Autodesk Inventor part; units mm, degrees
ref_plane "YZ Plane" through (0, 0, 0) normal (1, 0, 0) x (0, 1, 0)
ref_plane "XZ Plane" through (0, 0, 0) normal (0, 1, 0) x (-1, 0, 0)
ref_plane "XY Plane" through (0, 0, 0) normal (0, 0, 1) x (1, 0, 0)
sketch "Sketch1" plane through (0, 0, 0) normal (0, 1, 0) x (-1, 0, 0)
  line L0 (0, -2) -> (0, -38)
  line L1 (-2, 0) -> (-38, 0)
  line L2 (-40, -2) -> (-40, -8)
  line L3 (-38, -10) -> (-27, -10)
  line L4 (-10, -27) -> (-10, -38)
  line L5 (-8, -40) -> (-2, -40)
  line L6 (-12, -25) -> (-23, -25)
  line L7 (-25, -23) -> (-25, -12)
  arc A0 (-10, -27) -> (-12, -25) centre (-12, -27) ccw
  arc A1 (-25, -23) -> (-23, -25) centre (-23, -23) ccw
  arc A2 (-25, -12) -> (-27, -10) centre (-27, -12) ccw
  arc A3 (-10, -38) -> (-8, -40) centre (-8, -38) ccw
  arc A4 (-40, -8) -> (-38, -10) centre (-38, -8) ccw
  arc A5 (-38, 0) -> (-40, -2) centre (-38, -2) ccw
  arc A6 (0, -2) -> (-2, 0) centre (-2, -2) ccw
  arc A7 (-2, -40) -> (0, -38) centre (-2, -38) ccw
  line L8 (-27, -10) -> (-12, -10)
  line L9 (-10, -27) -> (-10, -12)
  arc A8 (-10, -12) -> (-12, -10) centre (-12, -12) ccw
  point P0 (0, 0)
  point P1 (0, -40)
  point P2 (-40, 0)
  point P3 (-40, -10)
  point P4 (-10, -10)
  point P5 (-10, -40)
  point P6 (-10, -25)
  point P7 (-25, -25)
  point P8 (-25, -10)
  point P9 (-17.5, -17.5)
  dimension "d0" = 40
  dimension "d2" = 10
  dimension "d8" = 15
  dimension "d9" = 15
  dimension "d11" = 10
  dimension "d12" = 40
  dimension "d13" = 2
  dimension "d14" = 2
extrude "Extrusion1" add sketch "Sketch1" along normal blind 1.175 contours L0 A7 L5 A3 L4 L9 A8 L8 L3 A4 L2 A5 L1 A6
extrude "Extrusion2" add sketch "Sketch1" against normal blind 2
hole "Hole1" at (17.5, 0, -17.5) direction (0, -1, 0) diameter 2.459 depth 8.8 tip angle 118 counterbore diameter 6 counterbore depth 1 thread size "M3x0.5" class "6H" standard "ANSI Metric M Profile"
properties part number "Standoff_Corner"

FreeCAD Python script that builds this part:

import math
import FreeCAD as App
import Part
import Sketcher
Q = App.Units.Quantity

doc = App.newDocument("Part")
body = doc.addObject("PartDesign::Body", "Body")

sketch1 = body.newObject("Sketcher::SketchObject", "Sketch")
sketch1.AttachmentSupport = (doc.getObject("XZ_Plane"), [""])
sketch1.MapMode = "FlatFace"
sketch1.addGeometry(Part.LineSegment(App.Vector(0, -38, 0), App.Vector(0, -2, 0)), False)
sketch1.addGeometry(Part.ArcOfCircle(Part.Circle(App.Vector(2, -2, 0), App.Vector(0, 0, 1), 2), math.radians(90), math.radians(180)), False)
sketch1.addGeometry(Part.LineSegment(App.Vector(2, 0, 0), App.Vector(38, 0, 0)), False)
sketch1.addGeometry(Part.ArcOfCircle(Part.Circle(App.Vector(38, -2, 0), App.Vector(0, 0, 1), 2), math.radians(0), math.radians(90)), False)
sketch1.addGeometry(Part.LineSegment(App.Vector(40, -2, 0), App.Vector(40, -8, 0)), False)
sketch1.addGeometry(Part.ArcOfCircle(Part.Circle(App.Vector(38, -8, 0), App.Vector(0, 0, 1), 2), math.radians(-90), math.radians(0)), False)
sketch1.addGeometry(Part.LineSegment(App.Vector(38, -10, 0), App.Vector(12, -10, 0)), False)
sketch1.addGeometry(Part.ArcOfCircle(Part.Circle(App.Vector(12, -12, 0), App.Vector(0, 0, 1), 2), math.radians(90), math.radians(180)), False)
sketch1.addGeometry(Part.LineSegment(App.Vector(10, -12, 0), App.Vector(10, -38, 0)), False)
sketch1.addGeometry(Part.ArcOfCircle(Part.Circle(App.Vector(8, -38, 0), App.Vector(0, 0, 1), 2), math.radians(-90), math.radians(0)), False)
sketch1.addGeometry(Part.LineSegment(App.Vector(8, -40, 0), App.Vector(2, -40, 0)), False)
sketch1.addGeometry(Part.ArcOfCircle(Part.Circle(App.Vector(2, -38, 0), App.Vector(0, 0, 1), 2), math.radians(180), math.radians(270)), False)
sketch1.addConstraint(Sketcher.Constraint("Tangent", 0, 2, 1, 2))
sketch1.addConstraint(Sketcher.Constraint("Tangent", 1, 1, 2, 1))
sketch1.addConstraint(Sketcher.Constraint("Tangent", 2, 2, 3, 2))
sketch1.addConstraint(Sketcher.Constraint("Tangent", 3, 1, 4, 1))
sketch1.addConstraint(Sketcher.Constraint("Tangent", 4, 2, 5, 2))
sketch1.addConstraint(Sketcher.Constraint("Tangent", 5, 1, 6, 1))
sketch1.addConstraint(Sketcher.Constraint("Tangent", 6, 2, 7, 1))
sketch1.addConstraint(Sketcher.Constraint("Tangent", 7, 2, 8, 1))
sketch1.addConstraint(Sketcher.Constraint("Tangent", 8, 2, 9, 2))
sketch1.addConstraint(Sketcher.Constraint("Tangent", 9, 1, 10, 1))
sketch1.addConstraint(Sketcher.Constraint("Tangent", 10, 2, 11, 2))
sketch1.addConstraint(Sketcher.Constraint("Tangent", 11, 1, 0, 1))
sketch1.addConstraint(Sketcher.Constraint("Vertical", 0))
sketch1.addConstraint(Sketcher.Constraint("Horizontal", 2))
sketch1.addConstraint(Sketcher.Constraint("Vertical", 4))
sketch1.addConstraint(Sketcher.Constraint("Horizontal", 6))
sketch1.addConstraint(Sketcher.Constraint("Vertical", 8))
sketch1.addConstraint(Sketcher.Constraint("Horizontal", 10))
sketch1.addConstraint(Sketcher.Constraint("Equal", 1, 3))
sketch1.addConstraint(Sketcher.Constraint("Equal", 3, 5))
sketch1.addConstraint(Sketcher.Constraint("Equal", 5, 7))
sketch1.addConstraint(Sketcher.Constraint("Equal", 7, 9))
sketch1.addConstraint(Sketcher.Constraint("Equal", 9, 11))
sketch1.addConstraint(Sketcher.Constraint("PointOnObject", 0, 2, -2))
sketch1.addConstraint(Sketcher.Constraint("PointOnObject", 1, 1, -1))
sketch1.addConstraint(Sketcher.Constraint("Equal", 2, 0))
sketch1.addConstraint(Sketcher.Constraint("Equal", 10, 4))
sketch1.addConstraint(Sketcher.Constraint("Radius", 1, Q("2 mm")))
sketch1.addConstraint(Sketcher.Constraint("DistanceX", -1, 1, 3, 1, Q("40 mm")))
sketch1.addConstraint(Sketcher.Constraint("DistanceY", 5, 1, -1, 1, Q("10 mm")))
pad1 = body.newObject("PartDesign::Pad", "Pad")
pad1.Profile = sketch1
pad1.Length = 1.175
pad1.Reversed = True

sketch2 = body.newObject("Sketcher::SketchObject", "Sketch001")
sketch2.AttachmentSupport = (doc.getObject("XZ_Plane"), [""])
sketch2.MapMode = "FlatFace"
sketch2.addGeometry(Part.LineSegment(App.Vector(0, -38, 0), App.Vector(0, -2, 0)), False)
sketch2.addGeometry(Part.ArcOfCircle(Part.Circle(App.Vector(2, -2, 0), App.Vector(0, 0, 1), 2), math.radians(90), math.radians(180)), False)
sketch2.addGeometry(Part.LineSegment(App.Vector(2, 0, 0), App.Vector(38, 0, 0)), False)
sketch2.addGeometry(Part.ArcOfCircle(Part.Circle(App.Vector(38, -2, 0), App.Vector(0, 0, 1), 2), math.radians(0), math.radians(90)), False)
sketch2.addGeometry(Part.LineSegment(App.Vector(40, -2, 0), App.Vector(40, -8, 0)), False)
sketch2.addGeometry(Part.ArcOfCircle(Part.Circle(App.Vector(38, -8, 0), App.Vector(0, 0, 1), 2), math.radians(-90), math.radians(0)), False)
sketch2.addGeometry(Part.LineSegment(App.Vector(38, -10, 0), App.Vector(27, -10, 0)), False)
sketch2.addGeometry(Part.ArcOfCircle(Part.Circle(App.Vector(27, -12, 0), App.Vector(0, 0, 1), 2), math.radians(90), math.radians(180)), False)
sketch2.addGeometry(Part.LineSegment(App.Vector(25, -12, 0), App.Vector(25, -23, 0)), False)
sketch2.addGeometry(Part.ArcOfCircle(Part.Circle(App.Vector(23, -23, 0), App.Vector(0, 0, 1), 2), math.radians(-90), math.radians(0)), False)
sketch2.addGeometry(Part.LineSegment(App.Vector(23, -25, 0), App.Vector(12, -25, 0)), False)
sketch2.addGeometry(Part.ArcOfCircle(Part.Circle(App.Vector(12, -27, 0), App.Vector(0, 0, 1), 2), math.radians(90), math.radians(180)), False)
sketch2.addGeometry(Part.LineSegment(App.Vector(10, -27, 0), App.Vector(10, -38, 0)), False)
sketch2.addGeometry(Part.ArcOfCircle(Part.Circle(App.Vector(8, -38, 0), App.Vector(0, 0, 1), 2), math.radians(-90), math.radians(0)), False)
sketch2.addGeometry(Part.LineSegment(App.Vector(8, -40, 0), App.Vector(2, -40, 0)), False)
sketch2.addGeometry(Part.ArcOfCircle(Part.Circle(App.Vector(2, -38, 0), App.Vector(0, 0, 1), 2), math.radians(180), math.radians(270)), False)
sketch2.addConstraint(Sketcher.Constraint("Tangent", 0, 2, 1, 2))
sketch2.addConstraint(Sketcher.Constraint("Tangent", 1, 1, 2, 1))
sketch2.addConstraint(Sketcher.Constraint("Tangent", 2, 2, 3, 2))
sketch2.addConstraint(Sketcher.Constraint("Tangent", 3, 1, 4, 1))
sketch2.addConstraint(Sketcher.Constraint("Tangent", 4, 2, 5, 2))
sketch2.addConstraint(Sketcher.Constraint("Tangent", 5, 1, 6, 1))
sketch2.addConstraint(Sketcher.Constraint("Tangent", 6, 2, 7, 1))
sketch2.addConstraint(Sketcher.Constraint("Tangent", 7, 2, 8, 1))
sketch2.addConstraint(Sketcher.Constraint("Tangent", 8, 2, 9, 2))
sketch2.addConstraint(Sketcher.Constraint("Tangent", 9, 1, 10, 1))
sketch2.addConstraint(Sketcher.Constraint("Tangent", 10, 2, 11, 1))
sketch2.addConstraint(Sketcher.Constraint("Tangent", 11, 2, 12, 1))
sketch2.addConstraint(Sketcher.Constraint("Tangent", 12, 2, 13, 2))
sketch2.addConstraint(Sketcher.Constraint("Tangent", 13, 1, 14, 1))
sketch2.addConstraint(Sketcher.Constraint("Tangent", 14, 2, 15, 2))
sketch2.addConstraint(Sketcher.Constraint("Tangent", 15, 1, 0, 1))
sketch2.addConstraint(Sketcher.Constraint("Vertical", 0))
sketch2.addConstraint(Sketcher.Constraint("Horizontal", 2))
sketch2.addConstraint(Sketcher.Constraint("Vertical", 4))
sketch2.addConstraint(Sketcher.Constraint("Horizontal", 6))
sketch2.addConstraint(Sketcher.Constraint("Vertical", 8))
sketch2.addConstraint(Sketcher.Constraint("Horizontal", 10))
sketch2.addConstraint(Sketcher.Constraint("Vertical", 12))
sketch2.addConstraint(Sketcher.Constraint("Horizontal", 14))
sketch2.addConstraint(Sketcher.Constraint("Equal", 1, 3))
sketch2.addConstraint(Sketcher.Constraint("Equal", 3, 5))
sketch2.addConstraint(Sketcher.Constraint("Equal", 5, 7))
sketch2.addConstraint(Sketcher.Constraint("Equal", 7, 9))
sketch2.addConstraint(Sketcher.Constraint("Equal", 9, 11))
sketch2.addConstraint(Sketcher.Constraint("Equal", 11, 13))
sketch2.addConstraint(Sketcher.Constraint("Equal", 13, 15))
sketch2.addConstraint(Sketcher.Constraint("PointOnObject", 0, 2, -2))
sketch2.addConstraint(Sketcher.Constraint("PointOnObject", 1, 1, -1))
sketch2.addConstraint(Sketcher.Constraint("Equal", 6, 10))
sketch2.addConstraint(Sketcher.Constraint("Equal", 2, 0))
sketch2.addConstraint(Sketcher.Constraint("Equal", 14, 4))
sketch2.addConstraint(Sketcher.Constraint("Equal", 10, 8))
sketch2.addConstraint(Sketcher.Constraint("Radius", 1, Q("2 mm")))
sketch2.addConstraint(Sketcher.Constraint("DistanceX", -1, 1, 3, 1, Q("40 mm")))
sketch2.addConstraint(Sketcher.Constraint("DistanceY", 5, 1, -1, 1, Q("10 mm")))
pad2 = body.newObject("PartDesign::Pad", "Pad001")
pad2.Profile = sketch2
pad2.Length = 2

sketch3 = body.newObject("Sketcher::SketchObject", "Sketch002")
sketch3.AttachmentSupport = (doc.getObject("XZ_Plane"), [""])
sketch3.MapMode = "FlatFace"
sketch3.addGeometry(Part.Circle(App.Vector(17.5, -17.5, 0), App.Vector(0, 0, 1), 1.2295), False)
sketch3.addConstraint(Sketcher.Constraint("Diameter", 0, Q("2.459 mm")))
sketch3.addConstraint(Sketcher.Constraint("DistanceX", -1, 1, 0, 3, Q("17.5 mm")))
sketch3.addConstraint(Sketcher.Constraint("DistanceY", 0, 3, -1, 1, Q("17.5 mm")))
doc.recompute()
hole = body.newObject("PartDesign::Hole", "Hole")
hole.Profile = sketch3
hole.ThreadType = "None"
hole.Diameter = 2.459
hole.DepthType = "Dimension"
hole.Depth = 8.8
hole.DrillPoint = "Angled"
hole.DrillPointAngle = 118
hole.HoleCutType = "Counterbore"
hole.HoleCutDiameter = 6
hole.HoleCutDepth = 1
hole.Reversed = True

doc.recompute()
